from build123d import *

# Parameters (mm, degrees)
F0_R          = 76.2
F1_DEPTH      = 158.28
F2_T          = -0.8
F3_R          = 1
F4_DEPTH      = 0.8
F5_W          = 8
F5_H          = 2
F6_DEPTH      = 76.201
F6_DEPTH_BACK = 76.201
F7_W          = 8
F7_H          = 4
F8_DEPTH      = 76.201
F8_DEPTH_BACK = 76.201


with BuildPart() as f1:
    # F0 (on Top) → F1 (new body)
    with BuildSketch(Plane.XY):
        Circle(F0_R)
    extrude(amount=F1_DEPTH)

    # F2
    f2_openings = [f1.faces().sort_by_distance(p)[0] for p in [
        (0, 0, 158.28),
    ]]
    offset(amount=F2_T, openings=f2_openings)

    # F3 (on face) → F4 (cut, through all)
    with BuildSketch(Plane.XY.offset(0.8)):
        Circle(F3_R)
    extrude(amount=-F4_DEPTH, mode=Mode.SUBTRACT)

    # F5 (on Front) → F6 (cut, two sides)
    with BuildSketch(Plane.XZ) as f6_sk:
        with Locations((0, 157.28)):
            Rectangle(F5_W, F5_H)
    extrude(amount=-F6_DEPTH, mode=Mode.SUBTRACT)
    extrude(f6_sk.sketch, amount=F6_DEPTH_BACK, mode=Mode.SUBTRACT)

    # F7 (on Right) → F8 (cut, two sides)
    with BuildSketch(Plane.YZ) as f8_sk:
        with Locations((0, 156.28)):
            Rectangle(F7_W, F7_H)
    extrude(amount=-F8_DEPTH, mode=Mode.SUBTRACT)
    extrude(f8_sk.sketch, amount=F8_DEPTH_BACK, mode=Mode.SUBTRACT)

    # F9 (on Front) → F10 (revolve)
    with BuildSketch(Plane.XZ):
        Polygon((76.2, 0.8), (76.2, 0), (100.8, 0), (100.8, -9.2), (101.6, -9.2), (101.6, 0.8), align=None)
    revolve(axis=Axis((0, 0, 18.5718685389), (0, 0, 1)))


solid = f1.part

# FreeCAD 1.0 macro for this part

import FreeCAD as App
import Part
import Sketcher
Q = App.Units.Quantity


def faces_at(feature, points):
    """Names of the faces that lie closest to the given points."""
    faces = feature.Shape.Faces
    near = lambda p: min(range(len(faces)), key=lambda i: faces[i].distToShape(Part.Vertex(*p))[0])
    return sorted({f"Face{near(p) + 1}" for p in points})

doc = App.newDocument("Part")
body = doc.addObject("PartDesign::Body", "Body")

# Sketch on XY plane
sketch1 = body.newObject("Sketcher::SketchObject", "Sketch")
sketch1.AttachmentSupport = (doc.getObject("XY_Plane"), [""])
sketch1.MapMode = "FlatFace"
sketch1.addGeometry(Part.Circle(App.Vector(0, 0, 0), App.Vector(0, 0, 1), 76), False)
sketch1.addConstraint(Sketcher.Constraint("Coincident", 0, 3, -1, 1))
sketch1.addConstraint(Sketcher.Constraint("Diameter", 0, Q("152.4 mm")))
pad1 = body.newObject("PartDesign::Pad", "Pad")
pad1.Profile = sketch1
pad1.Length = 158.28
doc.recompute()

thickness = body.newObject("PartDesign::Thickness", "Thickness")
thickness.Base = (pad1, faces_at(pad1, [(0, 0, 158.28)]))
thickness.Value = 0.8
thickness.Reversed = True
thickness.Join = "Arc"

# Sketch on XY plane
sketch2 = body.newObject("Sketcher::SketchObject", "Sketch001")
sketch2.AttachmentSupport = (doc.getObject("XY_Plane"), [""])
sketch2.MapMode = "FlatFace"
sketch2.AttachmentOffset = App.Placement(App.Vector(0, 0, 0.8), App.Rotation())
sketch2.addGeometry(Part.Circle(App.Vector(0, 0, 0), App.Vector(0, 0, 1), 1), False)
sketch2.addConstraint(Sketcher.Constraint("Coincident", 0, 3, -1, 1))
sketch2.addConstraint(Sketcher.Constraint("Diameter", 0, Q("2 mm")))
pocket1 = body.newObject("PartDesign::Pocket", "Pocket")
pocket1.Profile = sketch2
pocket1.Type = "ThroughAll"

# Sketch on XZ plane
sketch3 = body.newObject("Sketcher::SketchObject", "Sketch002")
sketch3.AttachmentSupport = (doc.getObject("XZ_Plane"), [""])
sketch3.MapMode = "FlatFace"
sketch3.addGeometry(Part.LineSegment(App.Vector(-4, 158.3, 0), App.Vector(-4, 156.3, 0)), False)
sketch3.addGeometry(Part.LineSegment(App.Vector(-4, 156.3, 0), App.Vector(4, 156.3, 0)), False)
sketch3.addGeometry(Part.LineSegment(App.Vector(4, 156.3, 0), App.Vector(4, 158.3, 0)), False)
sketch3.addGeometry(Part.LineSegment(App.Vector(4, 158.3, 0), App.Vector(-4, 158.3, 0)), False)
sketch3.addConstraint(Sketcher.Constraint("Coincident", 0, 2, 1, 1))
sketch3.addConstraint(Sketcher.Constraint("Coincident", 1, 2, 2, 1))
sketch3.addConstraint(Sketcher.Constraint("Coincident", 2, 2, 3, 1))
sketch3.addConstraint(Sketcher.Constraint("Coincident", 3, 2, 0, 1))
sketch3.addConstraint(Sketcher.Constraint("Vertical", 0))
sketch3.addConstraint(Sketcher.Constraint("Horizontal", 1))
sketch3.addConstraint(Sketcher.Constraint("Vertical", 2))
sketch3.addConstraint(Sketcher.Constraint("Horizontal", 3))
sketch3.addConstraint(Sketcher.Constraint("DistanceX", 1, 1, 1, 2, Q("8 mm")))
sketch3.addConstraint(Sketcher.Constraint("DistanceY", 0, 2, 0, 1, Q("2 mm")))
sketch3.addConstraint(Sketcher.Constraint("DistanceX", 0, 2, -1, 1, Q("4 mm")))
sketch3.addConstraint(Sketcher.Constraint("DistanceY", -1, 1, 0, 2, Q("156.28 mm")))
pocket2 = body.newObject("PartDesign::Pocket", "Pocket001")
pocket2.Profile = sketch3
pocket2.Type = "ThroughAll"
pocket2.Midplane = True

# Sketch on YZ plane
sketch4 = body.newObject("Sketcher::SketchObject", "Sketch003")
sketch4.AttachmentSupport = (doc.getObject("YZ_Plane"), [""])
sketch4.MapMode = "FlatFace"
sketch4.addGeometry(Part.LineSegment(App.Vector(-4, 158.3, 0), App.Vector(-4, 154.3, 0)), False)
sketch4.addGeometry(Part.LineSegment(App.Vector(-4, 154.3, 0), App.Vector(4, 154.3, 0)), False)
sketch4.addGeometry(Part.LineSegment(App.Vector(4, 154.3, 0), App.Vector(4, 158.3, 0)), False)
sketch4.addGeometry(Part.LineSegment(App.Vector(4, 158.3, 0), App.Vector(-4, 158.3, 0)), False)
sketch4.addConstraint(Sketcher.Constraint("Coincident", 0, 2, 1, 1))
sketch4.addConstraint(Sketcher.Constraint("Coincident", 1, 2, 2, 1))
sketch4.addConstraint(Sketcher.Constraint("Coincident", 2, 2, 3, 1))
sketch4.addConstraint(Sketcher.Constraint("Coincident", 3, 2, 0, 1))
sketch4.addConstraint(Sketcher.Constraint("Vertical", 0))
sketch4.addConstraint(Sketcher.Constraint("Horizontal", 1))
sketch4.addConstraint(Sketcher.Constraint("Vertical", 2))
sketch4.addConstraint(Sketcher.Constraint("Horizontal", 3))
sketch4.addConstraint(Sketcher.Constraint("DistanceX", 1, 1, 1, 2, Q("8 mm")))
sketch4.addConstraint(Sketcher.Constraint("DistanceY", 0, 2, 0, 1, Q("4 mm")))
sketch4.addConstraint(Sketcher.Constraint("DistanceX", 0, 2, -1, 1, Q("4 mm")))
sketch4.addConstraint(Sketcher.Constraint("DistanceY", -1, 1, 0, 2, Q("154.28 mm")))
pocket3 = body.newObject("PartDesign::Pocket", "Pocket002")
pocket3.Profile = sketch4
pocket3.Type = "ThroughAll"
pocket3.Midplane = True

# Sketch on XZ plane
sketch5 = body.newObject("Sketcher::SketchObject", "Sketch004")
sketch5.AttachmentSupport = (doc.getObject("XZ_Plane"), [""])
sketch5.MapMode = "FlatFace"
sketch5.addGeometry(Part.LineSegment(App.Vector(76.2, 0.8, 0), App.Vector(76.2, 0, 0)), False)
sketch5.addGeometry(Part.LineSegment(App.Vector(76.2, 0, 0), App.Vector(100.8, 0, 0)), False)
sketch5.addGeometry(Part.LineSegment(App.Vector(100.8, 0, 0), App.Vector(100.8, -9.2, 0)), False)
sketch5.addGeometry(Part.LineSegment(App.Vector(100.8, -9.2, 0), App.Vector(101.6, -9.2, 0)), False)
sketch5.addGeometry(Part.LineSegment(App.Vector(101.6, -9.2, 0), App.Vector(101.6, 0.8, 0)), False)
sketch5.addGeometry(Part.LineSegment(App.Vector(101.6, 0.8, 0), App.Vector(76.2, 0.8, 0)), False)
sketch5.addConstraint(Sketcher.Constraint("Coincident", 0, 2, 1, 1))
sketch5.addConstraint(Sketcher.Constraint("Coincident", 1, 2, 2, 1))
sketch5.addConstraint(Sketcher.Constraint("Coincident", 2, 2, 3, 1))
sketch5.addConstraint(Sketcher.Constraint("Coincident", 3, 2, 4, 1))
sketch5.addConstraint(Sketcher.Constraint("Coincident", 4, 2, 5, 1))
sketch5.addConstraint(Sketcher.Constraint("Coincident", 5, 2, 0, 1))
sketch5.addConstraint(Sketcher.Constraint("Vertical", 0))
sketch5.addConstraint(Sketcher.Constraint("Horizontal", 1))
sketch5.addConstraint(Sketcher.Constraint("Vertical", 2))
sketch5.addConstraint(Sketcher.Constraint("Horizontal", 3))
sketch5.addConstraint(Sketcher.Constraint("Vertical", 4))
sketch5.addConstraint(Sketcher.Constraint("Horizontal", 5))
sketch5.addConstraint(Sketcher.Constraint("PointOnObject", 0, 2, -1))
sketch5.addConstraint(Sketcher.Constraint("Equal", 3, 0))
sketch5.addConstraint(Sketcher.Constraint("DistanceY", 4, 1, 4, 2, Q("10 mm")))
sketch5.addConstraint(Sketcher.Constraint("DistanceX", 1, 1, 1, 2, Q("24.6 mm")))
sketch5.addConstraint(Sketcher.Constraint("DistanceX", 3, 1, 3, 2, Q("0.8 mm")))
sketch5.addConstraint(Sketcher.Constraint("DistanceX", -1, 1, 0, 2, Q("76.2 mm")))
revolution = body.newObject("PartDesign::Revolution", "Revolution")
revolution.Profile = sketch5
revolution.ReferenceAxis = (sketch5, ["V_Axis"])
revolution.Angle = 360

doc.recompute()
